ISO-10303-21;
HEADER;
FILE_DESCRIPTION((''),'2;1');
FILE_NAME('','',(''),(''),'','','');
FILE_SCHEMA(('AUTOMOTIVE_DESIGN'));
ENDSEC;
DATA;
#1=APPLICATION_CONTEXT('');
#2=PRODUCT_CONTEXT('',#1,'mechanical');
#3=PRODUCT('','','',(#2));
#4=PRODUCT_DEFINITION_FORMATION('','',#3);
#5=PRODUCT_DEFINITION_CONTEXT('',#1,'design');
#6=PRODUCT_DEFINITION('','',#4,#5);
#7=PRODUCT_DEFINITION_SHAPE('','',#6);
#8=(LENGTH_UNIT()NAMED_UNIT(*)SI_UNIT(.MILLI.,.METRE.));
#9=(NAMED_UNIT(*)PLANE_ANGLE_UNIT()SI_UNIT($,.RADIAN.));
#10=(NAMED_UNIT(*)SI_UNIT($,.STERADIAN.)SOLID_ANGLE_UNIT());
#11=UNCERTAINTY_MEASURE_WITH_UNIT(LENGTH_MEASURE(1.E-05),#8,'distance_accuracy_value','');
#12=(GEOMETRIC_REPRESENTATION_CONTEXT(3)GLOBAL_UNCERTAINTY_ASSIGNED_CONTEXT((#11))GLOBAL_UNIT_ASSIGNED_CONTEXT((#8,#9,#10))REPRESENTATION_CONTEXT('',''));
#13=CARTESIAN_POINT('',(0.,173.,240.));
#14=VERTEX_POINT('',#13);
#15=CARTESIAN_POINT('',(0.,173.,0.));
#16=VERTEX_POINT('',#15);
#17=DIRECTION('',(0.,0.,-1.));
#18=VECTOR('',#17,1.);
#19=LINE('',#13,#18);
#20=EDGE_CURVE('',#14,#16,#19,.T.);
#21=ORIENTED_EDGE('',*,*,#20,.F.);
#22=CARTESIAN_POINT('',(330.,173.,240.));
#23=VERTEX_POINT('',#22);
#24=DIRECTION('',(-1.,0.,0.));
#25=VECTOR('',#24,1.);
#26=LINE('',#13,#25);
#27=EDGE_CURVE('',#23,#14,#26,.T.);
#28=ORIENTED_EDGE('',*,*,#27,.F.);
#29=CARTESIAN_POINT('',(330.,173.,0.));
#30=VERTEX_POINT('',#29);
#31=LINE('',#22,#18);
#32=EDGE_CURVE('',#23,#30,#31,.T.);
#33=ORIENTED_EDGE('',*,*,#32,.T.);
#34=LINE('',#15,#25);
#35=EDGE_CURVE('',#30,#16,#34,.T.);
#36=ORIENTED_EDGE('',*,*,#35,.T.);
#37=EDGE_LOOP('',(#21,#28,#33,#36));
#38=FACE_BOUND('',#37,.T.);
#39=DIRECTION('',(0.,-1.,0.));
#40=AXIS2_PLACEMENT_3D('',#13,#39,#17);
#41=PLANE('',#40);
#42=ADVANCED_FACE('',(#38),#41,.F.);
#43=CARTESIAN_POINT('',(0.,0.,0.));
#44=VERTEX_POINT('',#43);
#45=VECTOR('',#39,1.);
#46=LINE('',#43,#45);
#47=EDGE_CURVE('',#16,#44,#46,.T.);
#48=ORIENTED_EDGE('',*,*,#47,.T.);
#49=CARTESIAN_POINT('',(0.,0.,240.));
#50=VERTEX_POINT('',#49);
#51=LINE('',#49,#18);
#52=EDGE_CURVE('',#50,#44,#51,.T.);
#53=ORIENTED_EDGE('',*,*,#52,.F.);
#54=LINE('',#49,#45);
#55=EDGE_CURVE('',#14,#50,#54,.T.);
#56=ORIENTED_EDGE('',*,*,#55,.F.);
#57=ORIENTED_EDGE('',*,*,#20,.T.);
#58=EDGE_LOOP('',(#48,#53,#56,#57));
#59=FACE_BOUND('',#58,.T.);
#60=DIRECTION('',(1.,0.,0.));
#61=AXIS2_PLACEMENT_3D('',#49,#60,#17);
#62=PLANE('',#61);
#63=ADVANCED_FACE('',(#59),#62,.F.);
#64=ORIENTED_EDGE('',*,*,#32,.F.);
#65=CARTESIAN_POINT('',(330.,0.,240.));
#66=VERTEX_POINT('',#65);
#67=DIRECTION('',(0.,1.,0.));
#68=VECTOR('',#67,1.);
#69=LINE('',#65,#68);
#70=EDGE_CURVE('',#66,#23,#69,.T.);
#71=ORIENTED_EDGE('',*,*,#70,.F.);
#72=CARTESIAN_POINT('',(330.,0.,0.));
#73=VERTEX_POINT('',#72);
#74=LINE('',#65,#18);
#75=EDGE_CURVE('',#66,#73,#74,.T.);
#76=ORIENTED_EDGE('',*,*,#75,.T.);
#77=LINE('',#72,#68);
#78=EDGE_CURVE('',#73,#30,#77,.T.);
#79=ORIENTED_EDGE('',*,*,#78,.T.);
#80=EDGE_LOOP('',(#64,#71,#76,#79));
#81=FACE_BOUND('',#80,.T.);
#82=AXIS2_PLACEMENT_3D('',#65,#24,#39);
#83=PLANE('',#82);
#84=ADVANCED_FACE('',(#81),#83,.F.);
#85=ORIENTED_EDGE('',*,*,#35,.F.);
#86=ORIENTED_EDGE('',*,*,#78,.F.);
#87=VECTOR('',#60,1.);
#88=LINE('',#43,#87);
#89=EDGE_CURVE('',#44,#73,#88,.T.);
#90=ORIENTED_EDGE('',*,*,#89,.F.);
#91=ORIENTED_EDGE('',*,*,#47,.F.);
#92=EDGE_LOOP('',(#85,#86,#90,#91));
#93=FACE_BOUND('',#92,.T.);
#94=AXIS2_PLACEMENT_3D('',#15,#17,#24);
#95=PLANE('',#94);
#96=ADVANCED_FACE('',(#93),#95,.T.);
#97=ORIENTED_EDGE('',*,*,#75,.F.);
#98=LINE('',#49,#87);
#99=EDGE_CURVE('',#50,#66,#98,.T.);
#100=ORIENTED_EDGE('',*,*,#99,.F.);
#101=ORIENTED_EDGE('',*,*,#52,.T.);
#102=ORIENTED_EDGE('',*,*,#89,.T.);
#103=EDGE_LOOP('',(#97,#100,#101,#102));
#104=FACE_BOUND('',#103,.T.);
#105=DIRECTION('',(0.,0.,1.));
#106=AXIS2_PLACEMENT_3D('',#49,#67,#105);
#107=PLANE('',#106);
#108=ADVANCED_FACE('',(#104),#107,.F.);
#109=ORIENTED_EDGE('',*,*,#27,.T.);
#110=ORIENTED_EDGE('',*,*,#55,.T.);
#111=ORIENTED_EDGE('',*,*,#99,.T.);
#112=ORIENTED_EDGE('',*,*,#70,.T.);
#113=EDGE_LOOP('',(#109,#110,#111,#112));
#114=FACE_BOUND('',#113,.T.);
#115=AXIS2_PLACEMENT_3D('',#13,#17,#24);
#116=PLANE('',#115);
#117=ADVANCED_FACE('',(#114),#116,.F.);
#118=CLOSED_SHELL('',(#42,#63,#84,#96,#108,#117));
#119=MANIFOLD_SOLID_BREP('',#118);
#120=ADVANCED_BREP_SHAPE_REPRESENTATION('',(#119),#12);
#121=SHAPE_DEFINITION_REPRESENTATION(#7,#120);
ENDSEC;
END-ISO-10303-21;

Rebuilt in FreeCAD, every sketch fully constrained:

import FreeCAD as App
import Part
import Sketcher

V = App.Vector


def add_polygon(sketch, points):
    """Adds a closed chain of lines whose ends are joined by coincident constraints."""
    first, n = sketch.GeometryCount, len(points)
    for a, b in zip(points, points[1:] + points[:1]):
        sketch.addGeometry(Part.LineSegment(App.Vector(*a, 0), App.Vector(*b, 0)), False)
    for i in range(n):
        sketch.addConstraint(Sketcher.Constraint("Coincident", first + i, 2, first + (i + 1) % n, 1))

doc = App.newDocument("Part")
body = doc.addObject("PartDesign::Body", "Body")

# Sketch on XY plane
sketch1 = doc.addObject("Sketcher::SketchObject", "Sketch")
body.addObject(sketch1)
sketch1.AttachmentSupport = (doc.XY_Plane, [""])
sketch1.MapMode = "FlatFace"
add_polygon(sketch1, [(0, 173), (0, 0), (330, 0), (330, 173)])  # lines 0-3
sketch1.addConstraint(Sketcher.Constraint("Vertical", 0))
sketch1.addConstraint(Sketcher.Constraint("Horizontal", 1))
sketch1.addConstraint(Sketcher.Constraint("Vertical", 2))
sketch1.addConstraint(Sketcher.Constraint("Horizontal", 3))
sketch1.addConstraint(Sketcher.Constraint("Coincident", 0, 2, -1, 1))
sketch1.addConstraint(Sketcher.Constraint("DistanceX", 1, 1, 1, 2, 330.0))
sketch1.addConstraint(Sketcher.Constraint("DistanceY", 0, 2, 0, 1, 173.0))
pad1 = doc.addObject("PartDesign::Pad", "Pad")
body.addObject(pad1)
pad1.Profile = sketch1
pad1.Length = 240

doc.recompute()
